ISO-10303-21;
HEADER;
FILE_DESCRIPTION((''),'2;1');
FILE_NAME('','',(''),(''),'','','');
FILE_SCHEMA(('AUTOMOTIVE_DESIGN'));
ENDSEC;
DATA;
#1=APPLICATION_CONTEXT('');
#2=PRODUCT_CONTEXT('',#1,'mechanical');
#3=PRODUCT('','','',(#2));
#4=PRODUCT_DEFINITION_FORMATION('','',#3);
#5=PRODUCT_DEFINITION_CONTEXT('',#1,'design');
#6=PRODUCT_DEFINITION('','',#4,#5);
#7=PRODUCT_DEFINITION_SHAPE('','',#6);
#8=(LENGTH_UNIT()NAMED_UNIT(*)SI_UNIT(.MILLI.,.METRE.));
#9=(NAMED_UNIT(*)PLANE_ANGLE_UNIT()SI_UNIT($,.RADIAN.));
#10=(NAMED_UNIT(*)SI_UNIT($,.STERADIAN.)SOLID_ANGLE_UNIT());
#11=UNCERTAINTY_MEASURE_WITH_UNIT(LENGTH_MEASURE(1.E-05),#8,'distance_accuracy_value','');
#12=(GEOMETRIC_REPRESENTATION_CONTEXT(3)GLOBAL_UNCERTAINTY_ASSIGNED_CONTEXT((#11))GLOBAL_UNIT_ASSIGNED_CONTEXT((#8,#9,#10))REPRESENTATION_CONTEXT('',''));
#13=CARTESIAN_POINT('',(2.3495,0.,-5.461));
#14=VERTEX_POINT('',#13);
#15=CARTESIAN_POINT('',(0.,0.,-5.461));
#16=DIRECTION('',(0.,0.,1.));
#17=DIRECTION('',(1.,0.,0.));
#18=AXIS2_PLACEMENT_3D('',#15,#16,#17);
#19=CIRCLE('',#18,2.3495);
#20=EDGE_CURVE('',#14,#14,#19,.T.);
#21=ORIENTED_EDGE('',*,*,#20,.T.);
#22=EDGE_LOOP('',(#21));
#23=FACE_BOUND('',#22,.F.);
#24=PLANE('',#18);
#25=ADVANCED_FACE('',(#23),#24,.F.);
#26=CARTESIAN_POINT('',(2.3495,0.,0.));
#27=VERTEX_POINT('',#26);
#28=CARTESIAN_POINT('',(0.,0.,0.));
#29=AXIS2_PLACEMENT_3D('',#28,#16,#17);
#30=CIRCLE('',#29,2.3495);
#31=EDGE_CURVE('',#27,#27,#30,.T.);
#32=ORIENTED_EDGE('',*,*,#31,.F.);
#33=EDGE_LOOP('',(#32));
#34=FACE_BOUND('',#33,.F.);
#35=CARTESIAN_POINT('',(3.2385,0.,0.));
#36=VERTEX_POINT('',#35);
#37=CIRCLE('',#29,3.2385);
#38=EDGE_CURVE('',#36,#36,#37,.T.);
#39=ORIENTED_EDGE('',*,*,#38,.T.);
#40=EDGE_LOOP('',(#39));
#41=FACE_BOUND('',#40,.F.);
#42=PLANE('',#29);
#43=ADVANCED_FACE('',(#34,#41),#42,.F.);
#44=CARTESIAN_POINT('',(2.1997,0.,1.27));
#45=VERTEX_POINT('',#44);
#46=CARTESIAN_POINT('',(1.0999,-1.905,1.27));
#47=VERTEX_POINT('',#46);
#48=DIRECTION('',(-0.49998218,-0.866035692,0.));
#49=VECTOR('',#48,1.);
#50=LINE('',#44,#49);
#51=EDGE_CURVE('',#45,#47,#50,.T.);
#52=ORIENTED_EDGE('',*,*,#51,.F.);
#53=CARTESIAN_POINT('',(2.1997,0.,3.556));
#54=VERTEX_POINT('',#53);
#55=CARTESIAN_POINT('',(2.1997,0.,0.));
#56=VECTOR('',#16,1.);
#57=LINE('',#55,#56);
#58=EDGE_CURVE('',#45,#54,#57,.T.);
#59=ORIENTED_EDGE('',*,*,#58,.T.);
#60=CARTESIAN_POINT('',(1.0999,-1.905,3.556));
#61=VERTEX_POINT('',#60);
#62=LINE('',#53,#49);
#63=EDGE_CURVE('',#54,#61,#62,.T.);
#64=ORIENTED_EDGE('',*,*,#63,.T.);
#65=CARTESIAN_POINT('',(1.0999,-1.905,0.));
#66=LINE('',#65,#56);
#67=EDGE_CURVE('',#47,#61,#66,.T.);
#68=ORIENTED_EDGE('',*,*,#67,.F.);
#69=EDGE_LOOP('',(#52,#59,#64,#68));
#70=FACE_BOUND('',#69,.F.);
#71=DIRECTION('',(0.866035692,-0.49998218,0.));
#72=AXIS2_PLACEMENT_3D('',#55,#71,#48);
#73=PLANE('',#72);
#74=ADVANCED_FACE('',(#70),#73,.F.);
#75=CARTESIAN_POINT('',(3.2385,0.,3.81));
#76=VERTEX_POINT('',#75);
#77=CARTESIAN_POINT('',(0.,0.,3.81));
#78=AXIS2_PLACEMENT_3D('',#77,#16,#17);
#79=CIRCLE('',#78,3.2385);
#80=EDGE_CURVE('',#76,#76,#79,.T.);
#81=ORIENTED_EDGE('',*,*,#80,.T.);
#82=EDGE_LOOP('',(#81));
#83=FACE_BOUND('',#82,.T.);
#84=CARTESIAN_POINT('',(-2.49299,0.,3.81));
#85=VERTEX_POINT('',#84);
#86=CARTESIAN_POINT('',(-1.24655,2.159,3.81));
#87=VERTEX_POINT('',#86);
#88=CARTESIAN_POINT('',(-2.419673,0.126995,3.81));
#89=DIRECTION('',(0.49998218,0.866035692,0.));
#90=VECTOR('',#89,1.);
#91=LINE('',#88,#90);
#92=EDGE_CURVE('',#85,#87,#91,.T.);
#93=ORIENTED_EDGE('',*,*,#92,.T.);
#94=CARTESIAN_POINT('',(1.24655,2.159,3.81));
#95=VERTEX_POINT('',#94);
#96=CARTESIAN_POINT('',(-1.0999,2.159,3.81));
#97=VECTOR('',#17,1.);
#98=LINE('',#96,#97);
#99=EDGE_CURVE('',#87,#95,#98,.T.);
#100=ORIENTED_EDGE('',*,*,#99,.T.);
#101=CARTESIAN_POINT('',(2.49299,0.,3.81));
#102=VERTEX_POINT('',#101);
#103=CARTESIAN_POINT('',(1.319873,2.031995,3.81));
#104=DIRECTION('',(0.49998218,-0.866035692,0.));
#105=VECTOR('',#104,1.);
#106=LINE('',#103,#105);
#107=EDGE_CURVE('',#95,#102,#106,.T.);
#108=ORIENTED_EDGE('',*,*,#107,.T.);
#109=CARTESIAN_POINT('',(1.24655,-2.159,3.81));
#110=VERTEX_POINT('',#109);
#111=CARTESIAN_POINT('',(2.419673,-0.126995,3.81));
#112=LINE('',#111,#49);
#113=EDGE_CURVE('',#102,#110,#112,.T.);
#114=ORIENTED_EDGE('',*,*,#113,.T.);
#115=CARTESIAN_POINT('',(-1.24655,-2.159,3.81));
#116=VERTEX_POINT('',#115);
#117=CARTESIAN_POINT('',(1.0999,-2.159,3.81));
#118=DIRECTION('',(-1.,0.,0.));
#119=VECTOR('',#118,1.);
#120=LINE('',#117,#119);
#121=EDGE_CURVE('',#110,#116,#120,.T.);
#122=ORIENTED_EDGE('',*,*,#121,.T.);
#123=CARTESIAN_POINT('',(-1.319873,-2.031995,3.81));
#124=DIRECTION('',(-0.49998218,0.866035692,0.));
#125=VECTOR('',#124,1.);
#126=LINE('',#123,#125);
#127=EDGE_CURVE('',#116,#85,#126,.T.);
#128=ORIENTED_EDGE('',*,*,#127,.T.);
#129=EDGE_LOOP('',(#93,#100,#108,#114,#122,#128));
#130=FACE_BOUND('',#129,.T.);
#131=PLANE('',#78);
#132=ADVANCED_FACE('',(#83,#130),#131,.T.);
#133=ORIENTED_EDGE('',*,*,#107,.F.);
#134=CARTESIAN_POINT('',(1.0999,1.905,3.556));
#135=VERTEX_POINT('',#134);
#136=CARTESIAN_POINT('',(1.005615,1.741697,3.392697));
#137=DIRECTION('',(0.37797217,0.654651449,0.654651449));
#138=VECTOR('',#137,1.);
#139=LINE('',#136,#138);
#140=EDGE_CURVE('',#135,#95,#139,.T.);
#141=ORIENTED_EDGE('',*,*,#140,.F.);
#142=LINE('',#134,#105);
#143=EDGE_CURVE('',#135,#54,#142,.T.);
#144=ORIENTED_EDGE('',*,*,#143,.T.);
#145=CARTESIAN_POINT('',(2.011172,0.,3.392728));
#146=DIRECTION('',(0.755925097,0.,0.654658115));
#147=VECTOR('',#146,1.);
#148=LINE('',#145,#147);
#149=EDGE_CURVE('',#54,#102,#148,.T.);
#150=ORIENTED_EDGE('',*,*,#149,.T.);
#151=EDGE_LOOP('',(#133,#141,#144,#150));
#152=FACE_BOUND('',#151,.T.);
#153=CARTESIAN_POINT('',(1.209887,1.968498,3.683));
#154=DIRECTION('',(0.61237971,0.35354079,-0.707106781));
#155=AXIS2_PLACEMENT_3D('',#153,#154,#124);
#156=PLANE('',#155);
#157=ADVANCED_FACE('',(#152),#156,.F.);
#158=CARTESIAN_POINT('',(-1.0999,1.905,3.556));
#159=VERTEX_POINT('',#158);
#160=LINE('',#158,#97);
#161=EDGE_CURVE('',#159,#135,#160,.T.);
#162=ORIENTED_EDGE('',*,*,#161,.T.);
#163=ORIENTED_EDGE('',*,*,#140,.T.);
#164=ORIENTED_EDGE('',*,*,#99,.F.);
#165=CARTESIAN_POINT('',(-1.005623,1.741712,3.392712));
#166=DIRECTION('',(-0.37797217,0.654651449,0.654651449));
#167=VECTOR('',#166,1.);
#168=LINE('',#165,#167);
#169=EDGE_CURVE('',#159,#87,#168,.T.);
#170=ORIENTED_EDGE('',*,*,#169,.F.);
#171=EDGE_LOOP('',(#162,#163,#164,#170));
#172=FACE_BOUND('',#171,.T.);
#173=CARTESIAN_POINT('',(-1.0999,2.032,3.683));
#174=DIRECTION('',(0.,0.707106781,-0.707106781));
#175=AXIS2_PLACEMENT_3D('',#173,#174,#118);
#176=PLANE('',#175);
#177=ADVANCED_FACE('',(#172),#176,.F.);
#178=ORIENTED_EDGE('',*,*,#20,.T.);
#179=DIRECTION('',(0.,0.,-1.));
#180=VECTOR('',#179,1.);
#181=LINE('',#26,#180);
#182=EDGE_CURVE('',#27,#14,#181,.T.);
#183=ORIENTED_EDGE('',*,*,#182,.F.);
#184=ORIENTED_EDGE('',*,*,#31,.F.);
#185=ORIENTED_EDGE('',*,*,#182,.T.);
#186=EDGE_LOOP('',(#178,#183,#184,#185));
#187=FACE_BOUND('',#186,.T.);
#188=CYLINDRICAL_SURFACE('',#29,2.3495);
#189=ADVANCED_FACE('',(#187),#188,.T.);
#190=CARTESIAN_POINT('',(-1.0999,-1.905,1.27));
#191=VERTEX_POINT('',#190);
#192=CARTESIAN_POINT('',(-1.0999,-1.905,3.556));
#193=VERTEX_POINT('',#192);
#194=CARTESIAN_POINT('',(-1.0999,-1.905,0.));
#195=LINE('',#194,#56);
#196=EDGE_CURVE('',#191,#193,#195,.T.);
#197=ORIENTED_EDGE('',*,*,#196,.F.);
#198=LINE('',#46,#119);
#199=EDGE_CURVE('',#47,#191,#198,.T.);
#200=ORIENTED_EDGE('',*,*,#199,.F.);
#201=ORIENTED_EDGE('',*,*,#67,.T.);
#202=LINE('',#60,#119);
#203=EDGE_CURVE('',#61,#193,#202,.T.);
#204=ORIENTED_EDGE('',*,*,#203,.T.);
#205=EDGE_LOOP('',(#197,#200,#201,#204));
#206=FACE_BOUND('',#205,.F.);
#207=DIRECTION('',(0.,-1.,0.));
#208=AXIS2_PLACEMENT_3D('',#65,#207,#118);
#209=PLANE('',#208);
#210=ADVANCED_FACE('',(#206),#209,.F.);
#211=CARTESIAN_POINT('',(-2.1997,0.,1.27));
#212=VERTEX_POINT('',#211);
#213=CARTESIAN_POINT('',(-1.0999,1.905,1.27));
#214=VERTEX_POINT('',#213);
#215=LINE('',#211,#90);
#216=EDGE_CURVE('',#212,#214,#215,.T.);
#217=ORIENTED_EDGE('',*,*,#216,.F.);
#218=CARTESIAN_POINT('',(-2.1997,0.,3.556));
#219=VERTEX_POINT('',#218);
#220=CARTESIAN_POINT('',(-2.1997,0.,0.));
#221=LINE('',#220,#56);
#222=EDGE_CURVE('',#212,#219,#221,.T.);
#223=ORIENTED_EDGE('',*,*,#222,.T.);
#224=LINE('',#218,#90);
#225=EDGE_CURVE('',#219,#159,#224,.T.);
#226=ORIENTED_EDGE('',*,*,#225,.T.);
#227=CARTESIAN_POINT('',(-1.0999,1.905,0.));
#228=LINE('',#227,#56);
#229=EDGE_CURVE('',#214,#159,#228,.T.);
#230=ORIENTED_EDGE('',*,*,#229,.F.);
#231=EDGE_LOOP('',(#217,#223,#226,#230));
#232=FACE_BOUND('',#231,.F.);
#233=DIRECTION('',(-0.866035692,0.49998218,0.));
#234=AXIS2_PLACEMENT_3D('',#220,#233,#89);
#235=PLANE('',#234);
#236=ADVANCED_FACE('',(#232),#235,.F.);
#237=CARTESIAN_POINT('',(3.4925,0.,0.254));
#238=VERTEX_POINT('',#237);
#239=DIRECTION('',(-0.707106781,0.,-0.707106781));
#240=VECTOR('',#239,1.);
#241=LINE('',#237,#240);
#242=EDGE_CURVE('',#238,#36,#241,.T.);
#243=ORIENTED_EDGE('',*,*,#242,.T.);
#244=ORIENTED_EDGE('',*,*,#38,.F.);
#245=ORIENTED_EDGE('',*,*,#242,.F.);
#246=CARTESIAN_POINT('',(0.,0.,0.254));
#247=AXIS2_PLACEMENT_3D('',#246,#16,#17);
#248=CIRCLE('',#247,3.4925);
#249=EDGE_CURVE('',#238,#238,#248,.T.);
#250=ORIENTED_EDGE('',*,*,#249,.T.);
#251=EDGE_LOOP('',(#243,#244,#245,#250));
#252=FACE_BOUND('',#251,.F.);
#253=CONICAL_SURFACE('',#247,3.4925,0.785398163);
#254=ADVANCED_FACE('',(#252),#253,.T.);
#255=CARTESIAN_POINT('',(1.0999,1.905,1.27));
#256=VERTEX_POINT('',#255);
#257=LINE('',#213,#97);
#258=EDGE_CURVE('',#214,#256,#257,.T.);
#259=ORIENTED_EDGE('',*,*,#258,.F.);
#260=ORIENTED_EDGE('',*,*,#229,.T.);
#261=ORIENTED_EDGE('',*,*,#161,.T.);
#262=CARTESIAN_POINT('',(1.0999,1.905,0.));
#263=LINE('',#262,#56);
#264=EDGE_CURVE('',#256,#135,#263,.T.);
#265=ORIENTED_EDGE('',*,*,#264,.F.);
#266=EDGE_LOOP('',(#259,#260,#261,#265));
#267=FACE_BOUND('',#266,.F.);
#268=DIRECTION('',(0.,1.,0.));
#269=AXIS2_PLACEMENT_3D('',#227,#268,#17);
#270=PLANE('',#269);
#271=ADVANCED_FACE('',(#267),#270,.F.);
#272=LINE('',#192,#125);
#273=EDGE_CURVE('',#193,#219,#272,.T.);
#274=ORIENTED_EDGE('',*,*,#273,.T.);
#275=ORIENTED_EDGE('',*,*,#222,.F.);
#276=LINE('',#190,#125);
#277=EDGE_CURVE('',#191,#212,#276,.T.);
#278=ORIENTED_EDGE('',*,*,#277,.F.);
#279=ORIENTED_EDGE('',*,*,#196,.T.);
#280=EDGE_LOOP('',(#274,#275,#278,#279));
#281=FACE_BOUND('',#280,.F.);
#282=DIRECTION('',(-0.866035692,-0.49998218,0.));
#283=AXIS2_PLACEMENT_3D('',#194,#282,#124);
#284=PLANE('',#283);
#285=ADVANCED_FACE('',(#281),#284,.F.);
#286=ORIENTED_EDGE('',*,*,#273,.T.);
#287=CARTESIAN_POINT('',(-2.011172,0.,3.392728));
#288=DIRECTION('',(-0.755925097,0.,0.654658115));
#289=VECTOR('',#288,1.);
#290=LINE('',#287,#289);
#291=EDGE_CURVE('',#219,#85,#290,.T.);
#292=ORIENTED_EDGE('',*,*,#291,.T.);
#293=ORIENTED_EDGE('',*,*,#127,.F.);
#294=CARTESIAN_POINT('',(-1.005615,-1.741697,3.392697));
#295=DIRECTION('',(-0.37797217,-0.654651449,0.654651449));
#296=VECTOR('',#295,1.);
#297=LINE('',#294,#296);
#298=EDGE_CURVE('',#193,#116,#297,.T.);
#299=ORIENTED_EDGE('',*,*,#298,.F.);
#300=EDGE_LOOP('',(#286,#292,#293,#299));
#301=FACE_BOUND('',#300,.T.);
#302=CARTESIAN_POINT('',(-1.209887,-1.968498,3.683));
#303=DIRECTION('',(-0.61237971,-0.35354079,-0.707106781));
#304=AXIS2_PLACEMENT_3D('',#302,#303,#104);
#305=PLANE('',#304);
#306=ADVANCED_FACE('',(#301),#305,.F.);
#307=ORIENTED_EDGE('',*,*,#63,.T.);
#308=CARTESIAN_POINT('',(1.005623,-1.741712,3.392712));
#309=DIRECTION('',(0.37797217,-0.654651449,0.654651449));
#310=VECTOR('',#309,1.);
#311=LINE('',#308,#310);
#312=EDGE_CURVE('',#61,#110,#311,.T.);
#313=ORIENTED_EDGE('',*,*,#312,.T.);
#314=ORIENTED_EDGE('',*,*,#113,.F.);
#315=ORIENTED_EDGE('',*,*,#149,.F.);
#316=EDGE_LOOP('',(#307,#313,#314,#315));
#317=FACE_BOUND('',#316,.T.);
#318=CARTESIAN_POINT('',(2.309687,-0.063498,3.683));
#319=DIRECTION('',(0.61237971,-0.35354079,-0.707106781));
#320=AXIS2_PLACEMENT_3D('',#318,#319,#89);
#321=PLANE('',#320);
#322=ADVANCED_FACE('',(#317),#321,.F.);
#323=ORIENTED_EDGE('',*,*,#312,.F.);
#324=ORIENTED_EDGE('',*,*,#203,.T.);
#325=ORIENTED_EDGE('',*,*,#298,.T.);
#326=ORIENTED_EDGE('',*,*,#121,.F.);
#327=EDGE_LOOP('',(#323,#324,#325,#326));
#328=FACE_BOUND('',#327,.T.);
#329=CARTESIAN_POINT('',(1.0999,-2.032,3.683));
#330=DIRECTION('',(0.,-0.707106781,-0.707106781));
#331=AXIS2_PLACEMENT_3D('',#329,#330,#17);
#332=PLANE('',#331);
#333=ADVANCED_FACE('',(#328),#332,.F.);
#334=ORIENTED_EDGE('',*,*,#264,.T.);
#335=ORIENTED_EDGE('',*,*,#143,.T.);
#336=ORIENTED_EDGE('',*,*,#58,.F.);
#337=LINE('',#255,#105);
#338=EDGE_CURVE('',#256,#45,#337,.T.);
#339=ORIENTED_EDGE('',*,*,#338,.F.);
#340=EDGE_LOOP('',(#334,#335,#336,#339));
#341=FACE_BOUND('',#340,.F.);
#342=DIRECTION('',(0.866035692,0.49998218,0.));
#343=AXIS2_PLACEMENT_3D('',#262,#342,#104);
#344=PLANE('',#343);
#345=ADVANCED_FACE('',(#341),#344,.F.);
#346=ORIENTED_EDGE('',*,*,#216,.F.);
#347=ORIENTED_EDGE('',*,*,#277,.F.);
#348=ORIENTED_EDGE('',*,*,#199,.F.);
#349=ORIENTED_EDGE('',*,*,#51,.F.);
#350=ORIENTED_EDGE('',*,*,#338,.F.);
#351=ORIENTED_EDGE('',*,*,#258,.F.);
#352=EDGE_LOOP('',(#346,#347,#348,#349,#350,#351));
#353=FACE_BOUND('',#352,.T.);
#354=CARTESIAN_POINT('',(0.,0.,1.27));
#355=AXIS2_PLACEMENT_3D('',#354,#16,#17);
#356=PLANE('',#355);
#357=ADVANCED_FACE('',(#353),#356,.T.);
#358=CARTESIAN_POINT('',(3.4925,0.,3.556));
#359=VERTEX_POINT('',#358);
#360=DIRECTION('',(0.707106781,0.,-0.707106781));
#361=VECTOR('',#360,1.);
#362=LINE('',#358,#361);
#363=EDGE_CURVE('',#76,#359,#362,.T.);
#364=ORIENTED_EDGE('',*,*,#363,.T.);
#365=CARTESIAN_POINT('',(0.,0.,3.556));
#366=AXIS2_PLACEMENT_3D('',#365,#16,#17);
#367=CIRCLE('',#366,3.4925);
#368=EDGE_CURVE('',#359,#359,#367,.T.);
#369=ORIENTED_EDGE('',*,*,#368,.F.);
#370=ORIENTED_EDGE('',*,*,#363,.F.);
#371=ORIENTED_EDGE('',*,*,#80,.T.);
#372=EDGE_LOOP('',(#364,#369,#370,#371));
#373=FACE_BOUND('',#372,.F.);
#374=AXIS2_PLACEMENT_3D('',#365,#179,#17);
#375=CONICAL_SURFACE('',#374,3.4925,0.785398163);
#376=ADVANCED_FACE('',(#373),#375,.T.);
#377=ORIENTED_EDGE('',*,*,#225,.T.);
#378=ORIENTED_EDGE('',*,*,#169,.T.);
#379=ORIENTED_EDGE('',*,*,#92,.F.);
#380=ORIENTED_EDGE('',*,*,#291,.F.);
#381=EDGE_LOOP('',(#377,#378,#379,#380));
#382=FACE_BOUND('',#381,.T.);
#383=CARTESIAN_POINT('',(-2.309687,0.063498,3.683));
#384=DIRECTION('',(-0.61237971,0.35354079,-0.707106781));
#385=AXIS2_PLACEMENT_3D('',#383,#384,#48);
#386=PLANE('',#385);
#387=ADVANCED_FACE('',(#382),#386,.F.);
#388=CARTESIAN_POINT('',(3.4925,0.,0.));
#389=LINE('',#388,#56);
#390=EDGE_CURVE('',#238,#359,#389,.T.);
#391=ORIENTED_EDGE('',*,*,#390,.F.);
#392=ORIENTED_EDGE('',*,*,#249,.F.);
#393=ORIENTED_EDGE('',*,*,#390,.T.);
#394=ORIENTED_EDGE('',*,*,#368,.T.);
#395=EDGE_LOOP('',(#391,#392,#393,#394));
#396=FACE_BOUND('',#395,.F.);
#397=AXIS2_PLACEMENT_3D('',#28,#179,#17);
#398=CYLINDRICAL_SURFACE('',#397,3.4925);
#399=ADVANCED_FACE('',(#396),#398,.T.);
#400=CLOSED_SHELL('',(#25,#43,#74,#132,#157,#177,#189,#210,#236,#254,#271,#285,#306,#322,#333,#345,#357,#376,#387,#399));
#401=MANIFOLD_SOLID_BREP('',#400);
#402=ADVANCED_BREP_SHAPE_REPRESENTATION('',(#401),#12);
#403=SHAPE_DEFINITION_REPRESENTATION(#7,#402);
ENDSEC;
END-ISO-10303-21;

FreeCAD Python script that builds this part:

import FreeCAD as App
import Part
import Sketcher
from FreeCAD import Vector
Q = App.Units.Quantity


def edges_at(feature, points):
    """Names of the edges that pass closest to the given points."""
    edges = feature.Shape.Edges
    near = lambda p: min(range(len(edges)), key=lambda i: edges[i].distToShape(Part.Vertex(*p))[0])
    return sorted({f"Edge{near(p) + 1}" for p in points})

doc = App.newDocument("Part")
body = doc.addObject("PartDesign::Body", "Body")

sketch1 = body.newObject("Sketcher::SketchObject", "Sketch")
sketch1.AttachmentSupport = (doc.getObject("XY_Plane"), [""])
sketch1.MapMode = "FlatFace"
sketch1.addGeometry([
    Part.Circle(Vector(0, 0, 0), Vector(0, 0, 1), 3.5),
    Part.LineSegment(Vector(2.2, 0, 0), Vector(1.1, -1.9, 0)),
    Part.LineSegment(Vector(1.1, -1.9, 0), Vector(-1.1, -1.9, 0)),
    Part.LineSegment(Vector(-1.1, -1.9, 0), Vector(-2.2, 0, 0)),
    Part.LineSegment(Vector(-2.2, 0, 0), Vector(-1.1, 1.9, 0)),
    Part.LineSegment(Vector(-1.1, 1.9, 0), Vector(1.1, 1.9, 0)),
    Part.LineSegment(Vector(1.1, 1.9, 0), Vector(2.2, 0, 0)),
], False)
sketch1.addConstraint([
    Sketcher.Constraint("Coincident", 1, 2, 2, 1),
    Sketcher.Constraint("Coincident", 2, 2, 3, 1),
    Sketcher.Constraint("Coincident", 3, 2, 4, 1),
    Sketcher.Constraint("Coincident", 4, 2, 5, 1),
    Sketcher.Constraint("Coincident", 5, 2, 6, 1),
    Sketcher.Constraint("Coincident", 6, 2, 1, 1),
    Sketcher.Constraint("Horizontal", 2),
    Sketcher.Constraint("Horizontal", 5),
    Sketcher.Constraint("Coincident", 0, 3, -1, 1),
    Sketcher.Constraint("Symmetric", 1, 2, 4, 2, -1, 1),
    Sketcher.Constraint("Symmetric", 3, 2, 6, 2, -1, 1),
    Sketcher.Constraint("PointOnObject", 3, 2, -1),
    Sketcher.Constraint("Parallel", 3, 6),
    Sketcher.Constraint("Vertical", 2, 2, 4, 2),
    Sketcher.Constraint("Diameter", 0, Q("0.275 in")),
    Sketcher.Constraint("DistanceY", 2, 2, 4, 2, Q("0.15 in")),
    Sketcher.Constraint("Angle", 1, Q("-119.9988 deg")),
    Sketcher.Constraint("DistanceX", 2, 2, 2, 1, Q("0.0866 in")),
])
pad1 = body.newObject("PartDesign::Pad", "Pad")
pad1.Profile = sketch1
pad1.Length = Q("0.15 in")

sketch2 = body.newObject("Sketcher::SketchObject", "Sketch001")
sketch2.AttachmentSupport = (doc.getObject("XY_Plane"), [""])
sketch2.MapMode = "FlatFace"
sketch2.addGeometry(Part.Circle(Vector(0, 0, 0), Vector(0, 0, 1), 2.3), False)
sketch2.addConstraint([
    Sketcher.Constraint("Coincident", 0, 3, -1, 1),
    Sketcher.Constraint("Diameter", 0, Q("0.185 in")),
])
pad2 = body.newObject("PartDesign::Pad", "Pad001")
pad2.Profile = sketch2
pad2.Length = Q("0.215 in")
pad2.Reversed = True

sketch3 = body.newObject("Sketcher::SketchObject", "Sketch002")
sketch3.AttachmentSupport = (doc.getObject("XY_Plane"), [""])
sketch3.MapMode = "FlatFace"
sketch3.addGeometry([
    Part.LineSegment(Vector(1.1, -1.9, 0), Vector(2.2, 0, 0)),
    Part.LineSegment(Vector(2.2, 0, 0), Vector(1.1, 1.9, 0)),
    Part.LineSegment(Vector(1.1, 1.9, 0), Vector(-1.1, 1.9, 0)),
    Part.LineSegment(Vector(-1.1, 1.9, 0), Vector(-2.2, 0, 0)),
    Part.LineSegment(Vector(-2.2, 0, 0), Vector(-1.1, -1.9, 0)),
    Part.LineSegment(Vector(-1.1, -1.9, 0), Vector(1.1, -1.9, 0)),
], False)
sketch3.addConstraint([
    Sketcher.Constraint("Coincident", 0, 2, 1, 1),
    Sketcher.Constraint("Coincident", 1, 2, 2, 1),
    Sketcher.Constraint("Coincident", 2, 2, 3, 1),
    Sketcher.Constraint("Coincident", 3, 2, 4, 1),
    Sketcher.Constraint("Coincident", 4, 2, 5, 1),
    Sketcher.Constraint("Coincident", 5, 2, 0, 1),
    Sketcher.Constraint("Horizontal", 2),
    Sketcher.Constraint("Horizontal", 5),
    Sketcher.Constraint("Symmetric", 0, 2, 3, 2, -1, 1),
    Sketcher.Constraint("Symmetric", 1, 2, 4, 2, -1, 1),
    Sketcher.Constraint("PointOnObject", 0, 2, -1),
    Sketcher.Constraint("Parallel", 0, 3),
    Sketcher.Constraint("Vertical", 2, 2, 4, 2),
    Sketcher.Constraint("DistanceY", 4, 2, 2, 2, Q("0.15 in")),
    Sketcher.Constraint("Angle", 0, Q("60.0012 deg")),
    Sketcher.Constraint("DistanceX", 2, 2, 2, 1, Q("0.0866 in")),
])
pad3 = body.newObject("PartDesign::Pad", "Pad002")
pad3.Profile = sketch3
pad3.Length = Q("0.05 in")
doc.recompute()

chamfer = body.newObject("PartDesign::Chamfer", "Chamfer")
chamfer.Base = (pad3, edges_at(pad3, [
    (-3.493, 0, 3.81),
    (-3.493, 0, 0),
    (-1.65, 0.953, 3.81),
    (-1.65, -0.953, 3.81),
    (0, -1.905, 3.81),
    (1.65, -0.953, 3.81),
    (1.65, 0.953, 3.81),
    (0, 1.905, 3.81),
]))
chamfer.Size = Q("0.01 in")

doc.recompute()
